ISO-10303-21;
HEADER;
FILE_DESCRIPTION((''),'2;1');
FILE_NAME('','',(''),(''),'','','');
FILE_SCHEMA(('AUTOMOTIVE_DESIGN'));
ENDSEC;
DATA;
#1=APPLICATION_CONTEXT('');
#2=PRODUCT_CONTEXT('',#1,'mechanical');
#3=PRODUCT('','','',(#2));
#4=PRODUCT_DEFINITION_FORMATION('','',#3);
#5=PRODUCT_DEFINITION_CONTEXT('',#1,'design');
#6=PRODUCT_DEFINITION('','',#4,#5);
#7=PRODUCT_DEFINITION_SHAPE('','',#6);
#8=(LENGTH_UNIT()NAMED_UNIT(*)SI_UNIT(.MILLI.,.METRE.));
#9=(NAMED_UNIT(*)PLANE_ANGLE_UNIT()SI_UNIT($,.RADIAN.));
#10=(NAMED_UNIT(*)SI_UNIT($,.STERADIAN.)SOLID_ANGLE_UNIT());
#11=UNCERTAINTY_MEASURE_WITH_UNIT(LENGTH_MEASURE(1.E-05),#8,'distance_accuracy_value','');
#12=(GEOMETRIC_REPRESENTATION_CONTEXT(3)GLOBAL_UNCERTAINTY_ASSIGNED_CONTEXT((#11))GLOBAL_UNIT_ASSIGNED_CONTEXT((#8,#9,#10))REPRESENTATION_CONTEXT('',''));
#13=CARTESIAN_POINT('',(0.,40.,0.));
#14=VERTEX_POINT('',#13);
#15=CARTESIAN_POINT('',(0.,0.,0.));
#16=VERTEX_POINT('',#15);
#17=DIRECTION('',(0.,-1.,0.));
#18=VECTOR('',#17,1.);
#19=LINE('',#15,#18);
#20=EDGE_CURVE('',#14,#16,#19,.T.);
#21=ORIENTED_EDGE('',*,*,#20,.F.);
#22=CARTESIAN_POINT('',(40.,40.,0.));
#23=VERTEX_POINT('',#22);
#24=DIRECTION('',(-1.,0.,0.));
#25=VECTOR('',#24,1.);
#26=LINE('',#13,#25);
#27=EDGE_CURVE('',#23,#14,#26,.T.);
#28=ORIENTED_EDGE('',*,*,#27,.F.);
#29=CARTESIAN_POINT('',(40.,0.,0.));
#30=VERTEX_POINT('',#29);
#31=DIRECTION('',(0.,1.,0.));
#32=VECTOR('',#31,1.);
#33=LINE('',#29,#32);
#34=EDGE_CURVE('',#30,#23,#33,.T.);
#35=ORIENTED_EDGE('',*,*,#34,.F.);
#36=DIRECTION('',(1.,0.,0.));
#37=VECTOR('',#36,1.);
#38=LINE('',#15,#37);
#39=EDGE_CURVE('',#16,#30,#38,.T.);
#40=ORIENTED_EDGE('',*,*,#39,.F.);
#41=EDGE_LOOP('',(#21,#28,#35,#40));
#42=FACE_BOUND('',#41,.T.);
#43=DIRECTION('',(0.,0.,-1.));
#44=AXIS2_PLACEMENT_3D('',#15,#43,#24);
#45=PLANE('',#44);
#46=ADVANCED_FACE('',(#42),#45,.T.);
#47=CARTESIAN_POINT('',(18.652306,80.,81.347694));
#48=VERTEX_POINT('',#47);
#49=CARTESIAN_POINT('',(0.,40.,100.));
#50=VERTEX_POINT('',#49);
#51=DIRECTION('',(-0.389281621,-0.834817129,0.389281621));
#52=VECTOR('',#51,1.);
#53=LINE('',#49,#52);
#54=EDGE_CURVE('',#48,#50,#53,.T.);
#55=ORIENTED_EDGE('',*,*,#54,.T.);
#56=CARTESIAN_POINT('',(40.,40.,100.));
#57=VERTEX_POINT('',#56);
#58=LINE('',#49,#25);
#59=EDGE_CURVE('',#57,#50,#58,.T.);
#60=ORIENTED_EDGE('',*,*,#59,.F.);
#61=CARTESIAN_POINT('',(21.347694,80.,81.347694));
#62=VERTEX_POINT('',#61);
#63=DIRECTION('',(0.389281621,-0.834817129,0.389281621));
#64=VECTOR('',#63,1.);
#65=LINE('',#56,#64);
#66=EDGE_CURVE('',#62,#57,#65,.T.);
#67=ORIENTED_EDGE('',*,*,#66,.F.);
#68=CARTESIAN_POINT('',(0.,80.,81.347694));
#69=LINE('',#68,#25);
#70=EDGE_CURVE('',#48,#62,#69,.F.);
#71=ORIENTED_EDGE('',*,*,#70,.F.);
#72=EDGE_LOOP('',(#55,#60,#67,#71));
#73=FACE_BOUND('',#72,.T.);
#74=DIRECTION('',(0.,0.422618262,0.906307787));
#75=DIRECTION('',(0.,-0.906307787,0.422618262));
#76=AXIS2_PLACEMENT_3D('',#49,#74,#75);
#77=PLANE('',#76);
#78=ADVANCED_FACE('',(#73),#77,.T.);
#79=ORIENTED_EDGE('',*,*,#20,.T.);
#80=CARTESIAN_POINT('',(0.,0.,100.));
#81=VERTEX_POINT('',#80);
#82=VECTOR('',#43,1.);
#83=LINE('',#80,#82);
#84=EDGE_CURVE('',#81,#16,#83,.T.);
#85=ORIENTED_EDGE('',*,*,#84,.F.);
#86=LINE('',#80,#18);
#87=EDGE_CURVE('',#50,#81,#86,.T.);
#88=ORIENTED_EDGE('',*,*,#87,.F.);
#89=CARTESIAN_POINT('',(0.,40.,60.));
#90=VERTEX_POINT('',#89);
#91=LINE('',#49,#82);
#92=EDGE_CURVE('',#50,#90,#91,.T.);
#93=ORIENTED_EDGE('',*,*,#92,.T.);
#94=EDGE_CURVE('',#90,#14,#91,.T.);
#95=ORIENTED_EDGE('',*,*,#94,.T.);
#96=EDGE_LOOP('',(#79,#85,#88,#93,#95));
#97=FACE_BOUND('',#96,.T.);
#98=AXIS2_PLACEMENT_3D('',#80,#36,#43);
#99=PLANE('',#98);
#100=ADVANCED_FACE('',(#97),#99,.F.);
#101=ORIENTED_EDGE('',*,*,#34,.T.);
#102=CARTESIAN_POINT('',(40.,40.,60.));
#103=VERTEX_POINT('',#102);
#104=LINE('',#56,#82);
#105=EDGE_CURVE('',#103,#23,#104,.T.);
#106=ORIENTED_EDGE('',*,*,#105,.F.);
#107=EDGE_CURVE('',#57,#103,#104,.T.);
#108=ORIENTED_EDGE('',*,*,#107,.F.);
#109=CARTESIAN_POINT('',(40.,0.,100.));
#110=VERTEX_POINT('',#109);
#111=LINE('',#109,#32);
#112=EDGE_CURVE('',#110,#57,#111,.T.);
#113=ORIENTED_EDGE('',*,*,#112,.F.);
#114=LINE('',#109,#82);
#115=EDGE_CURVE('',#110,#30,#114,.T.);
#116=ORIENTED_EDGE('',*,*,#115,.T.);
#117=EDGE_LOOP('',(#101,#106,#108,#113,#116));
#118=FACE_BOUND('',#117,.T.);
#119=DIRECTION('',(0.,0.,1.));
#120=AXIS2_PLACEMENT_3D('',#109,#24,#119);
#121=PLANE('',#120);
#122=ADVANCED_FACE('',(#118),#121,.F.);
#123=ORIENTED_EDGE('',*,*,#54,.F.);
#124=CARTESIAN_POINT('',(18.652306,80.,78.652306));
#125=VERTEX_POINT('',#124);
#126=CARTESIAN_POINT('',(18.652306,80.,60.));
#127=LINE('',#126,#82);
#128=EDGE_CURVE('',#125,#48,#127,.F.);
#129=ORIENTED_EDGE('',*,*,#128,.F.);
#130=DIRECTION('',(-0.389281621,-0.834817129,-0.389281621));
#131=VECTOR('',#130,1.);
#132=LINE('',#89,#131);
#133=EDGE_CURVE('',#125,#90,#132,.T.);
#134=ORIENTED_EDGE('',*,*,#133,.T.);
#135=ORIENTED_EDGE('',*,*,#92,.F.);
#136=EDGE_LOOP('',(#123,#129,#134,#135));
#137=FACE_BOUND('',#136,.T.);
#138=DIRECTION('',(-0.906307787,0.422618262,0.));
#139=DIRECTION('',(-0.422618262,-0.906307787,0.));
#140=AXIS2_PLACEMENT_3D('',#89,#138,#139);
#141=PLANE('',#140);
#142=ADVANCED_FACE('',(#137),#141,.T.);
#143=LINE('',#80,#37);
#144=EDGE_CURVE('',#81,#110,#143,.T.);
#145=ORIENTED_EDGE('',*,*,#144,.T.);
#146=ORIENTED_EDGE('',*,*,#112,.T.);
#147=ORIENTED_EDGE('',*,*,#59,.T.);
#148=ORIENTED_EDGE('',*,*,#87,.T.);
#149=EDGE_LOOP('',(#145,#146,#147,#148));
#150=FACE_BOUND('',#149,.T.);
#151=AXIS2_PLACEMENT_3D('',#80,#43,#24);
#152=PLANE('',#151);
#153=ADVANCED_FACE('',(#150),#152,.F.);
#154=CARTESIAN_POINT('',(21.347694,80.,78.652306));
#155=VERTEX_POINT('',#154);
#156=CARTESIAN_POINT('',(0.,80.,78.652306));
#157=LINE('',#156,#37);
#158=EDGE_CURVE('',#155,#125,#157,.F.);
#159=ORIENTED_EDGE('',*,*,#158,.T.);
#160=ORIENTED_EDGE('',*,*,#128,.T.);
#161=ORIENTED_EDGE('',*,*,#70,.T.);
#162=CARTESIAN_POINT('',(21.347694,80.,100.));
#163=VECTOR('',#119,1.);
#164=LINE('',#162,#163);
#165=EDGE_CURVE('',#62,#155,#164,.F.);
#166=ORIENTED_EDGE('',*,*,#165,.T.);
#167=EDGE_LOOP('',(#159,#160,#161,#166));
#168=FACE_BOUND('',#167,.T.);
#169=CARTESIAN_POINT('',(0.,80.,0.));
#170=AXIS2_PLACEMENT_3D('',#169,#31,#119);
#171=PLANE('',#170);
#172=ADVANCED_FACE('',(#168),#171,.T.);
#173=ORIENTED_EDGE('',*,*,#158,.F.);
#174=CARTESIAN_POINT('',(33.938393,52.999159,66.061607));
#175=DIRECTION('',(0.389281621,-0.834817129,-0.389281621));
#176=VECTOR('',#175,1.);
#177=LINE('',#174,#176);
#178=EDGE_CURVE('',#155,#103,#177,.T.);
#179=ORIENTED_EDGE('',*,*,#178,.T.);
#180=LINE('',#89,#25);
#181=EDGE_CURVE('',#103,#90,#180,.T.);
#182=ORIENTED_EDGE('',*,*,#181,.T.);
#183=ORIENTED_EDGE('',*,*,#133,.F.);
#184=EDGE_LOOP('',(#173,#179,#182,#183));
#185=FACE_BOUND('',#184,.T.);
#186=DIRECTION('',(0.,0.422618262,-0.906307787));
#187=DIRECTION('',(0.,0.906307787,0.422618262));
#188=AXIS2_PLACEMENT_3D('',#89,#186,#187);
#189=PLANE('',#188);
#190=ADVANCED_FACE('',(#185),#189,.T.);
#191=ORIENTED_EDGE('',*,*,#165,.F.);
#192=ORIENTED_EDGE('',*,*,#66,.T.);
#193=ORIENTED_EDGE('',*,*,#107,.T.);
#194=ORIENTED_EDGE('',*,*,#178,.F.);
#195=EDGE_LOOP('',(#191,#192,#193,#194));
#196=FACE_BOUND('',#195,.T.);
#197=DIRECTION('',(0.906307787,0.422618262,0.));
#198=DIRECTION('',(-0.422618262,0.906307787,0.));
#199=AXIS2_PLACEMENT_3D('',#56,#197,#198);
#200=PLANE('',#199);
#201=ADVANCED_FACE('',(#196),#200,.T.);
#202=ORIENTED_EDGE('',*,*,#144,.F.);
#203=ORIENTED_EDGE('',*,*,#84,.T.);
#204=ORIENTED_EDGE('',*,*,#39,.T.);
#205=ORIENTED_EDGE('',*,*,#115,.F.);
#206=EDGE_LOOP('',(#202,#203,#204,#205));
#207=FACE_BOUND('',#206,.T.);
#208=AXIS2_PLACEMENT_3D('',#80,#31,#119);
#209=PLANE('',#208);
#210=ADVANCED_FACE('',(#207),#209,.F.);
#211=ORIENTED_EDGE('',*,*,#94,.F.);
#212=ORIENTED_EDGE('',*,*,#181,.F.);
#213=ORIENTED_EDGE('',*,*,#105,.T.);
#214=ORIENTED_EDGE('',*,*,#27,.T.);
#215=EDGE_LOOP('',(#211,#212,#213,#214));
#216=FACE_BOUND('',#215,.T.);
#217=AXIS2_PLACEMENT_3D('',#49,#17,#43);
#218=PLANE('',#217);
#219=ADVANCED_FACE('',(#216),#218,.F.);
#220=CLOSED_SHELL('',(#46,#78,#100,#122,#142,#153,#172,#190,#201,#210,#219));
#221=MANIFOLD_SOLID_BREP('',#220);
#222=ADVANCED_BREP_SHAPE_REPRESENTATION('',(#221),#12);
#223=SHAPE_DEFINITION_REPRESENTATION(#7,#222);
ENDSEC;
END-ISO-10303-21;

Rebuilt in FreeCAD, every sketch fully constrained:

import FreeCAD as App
import Part
import Sketcher
from FreeCAD import Vector
Q = App.Units.Quantity

doc = App.newDocument("Part")
body = doc.addObject("PartDesign::Body", "Body")

# Sketch on XY plane
sketch1 = doc.addObject("Sketcher::SketchObject", "Sketch")
body.addObject(sketch1)
sketch1.AttachmentSupport = (doc.XY_Plane, [""])
sketch1.MapMode = "FlatFace"
sketch1.addGeometry(Part.LineSegment(Vector(0, 40, 0), Vector(0, 0, 0)), False)
sketch1.addGeometry(Part.LineSegment(Vector(0, 0, 0), Vector(40, 0, 0)), False)
sketch1.addGeometry(Part.LineSegment(Vector(40, 0, 0), Vector(40, 40, 0)), False)
sketch1.addGeometry(Part.LineSegment(Vector(40, 40, 0), Vector(0, 40, 0)), False)
sketch1.addConstraint(Sketcher.Constraint("Coincident", 0, 2, 1, 1))
sketch1.addConstraint(Sketcher.Constraint("Coincident", 1, 2, 2, 1))
sketch1.addConstraint(Sketcher.Constraint("Coincident", 2, 2, 3, 1))
sketch1.addConstraint(Sketcher.Constraint("Coincident", 3, 2, 0, 1))
sketch1.addConstraint(Sketcher.Constraint("Vertical", 0))
sketch1.addConstraint(Sketcher.Constraint("Horizontal", 1))
sketch1.addConstraint(Sketcher.Constraint("Vertical", 2))
sketch1.addConstraint(Sketcher.Constraint("Horizontal", 3))
sketch1.addConstraint(Sketcher.Constraint("Coincident", 0, 2, -1, 1))
sketch1.addConstraint(Sketcher.Constraint("Equal", 3, 0))
sketch1.addConstraint(Sketcher.Constraint("DistanceX", 1, 1, 1, 2, Q("40 mm")))
pad1 = doc.addObject("PartDesign::Pad", "Pad")
body.addObject(pad1)
pad1.Profile = sketch1
pad1.Length = 100

# Sketch on XZ plane
sketch2 = doc.addObject("Sketcher::SketchObject", "Sketch001")
body.addObject(sketch2)
sketch2.AttachmentSupport = (doc.XZ_Plane, [""])
sketch2.MapMode = "FlatFace"
sketch2.AttachmentOffset = App.Placement(Vector(0, 0, -40), App.Rotation())
sketch2.addGeometry(Part.LineSegment(Vector(0, 60, 0), Vector(0, 100, 0)), False)
sketch2.addGeometry(Part.LineSegment(Vector(0, 100, 0), Vector(40, 100, 0)), False)
sketch2.addGeometry(Part.LineSegment(Vector(40, 100, 0), Vector(40, 60, 0)), False)
sketch2.addGeometry(Part.LineSegment(Vector(40, 60, 0), Vector(0, 60, 0)), False)
sketch2.addConstraint(Sketcher.Constraint("Coincident", 0, 2, 1, 1))
sketch2.addConstraint(Sketcher.Constraint("Coincident", 1, 2, 2, 1))
sketch2.addConstraint(Sketcher.Constraint("Coincident", 2, 2, 3, 1))
sketch2.addConstraint(Sketcher.Constraint("Coincident", 3, 2, 0, 1))
sketch2.addConstraint(Sketcher.Constraint("Vertical", 0))
sketch2.addConstraint(Sketcher.Constraint("Horizontal", 1))
sketch2.addConstraint(Sketcher.Constraint("Vertical", 2))
sketch2.addConstraint(Sketcher.Constraint("Horizontal", 3))
sketch2.addConstraint(Sketcher.Constraint("PointOnObject", 0, 2, -2))
sketch2.addConstraint(Sketcher.Constraint("Equal", 3, 0))
sketch2.addConstraint(Sketcher.Constraint("DistanceX", 1, 1, 1, 2, Q("40 mm")))
sketch2.addConstraint(Sketcher.Constraint("DistanceY", -1, 1, 0, 2, Q("100 mm")))
pad2 = doc.addObject("PartDesign::Pad", "Pad001")
body.addObject(pad2)
pad2.Profile = sketch2
pad2.Length = 40
pad2.Reversed = True
pad2.TaperAngle = -25

doc.recompute()
